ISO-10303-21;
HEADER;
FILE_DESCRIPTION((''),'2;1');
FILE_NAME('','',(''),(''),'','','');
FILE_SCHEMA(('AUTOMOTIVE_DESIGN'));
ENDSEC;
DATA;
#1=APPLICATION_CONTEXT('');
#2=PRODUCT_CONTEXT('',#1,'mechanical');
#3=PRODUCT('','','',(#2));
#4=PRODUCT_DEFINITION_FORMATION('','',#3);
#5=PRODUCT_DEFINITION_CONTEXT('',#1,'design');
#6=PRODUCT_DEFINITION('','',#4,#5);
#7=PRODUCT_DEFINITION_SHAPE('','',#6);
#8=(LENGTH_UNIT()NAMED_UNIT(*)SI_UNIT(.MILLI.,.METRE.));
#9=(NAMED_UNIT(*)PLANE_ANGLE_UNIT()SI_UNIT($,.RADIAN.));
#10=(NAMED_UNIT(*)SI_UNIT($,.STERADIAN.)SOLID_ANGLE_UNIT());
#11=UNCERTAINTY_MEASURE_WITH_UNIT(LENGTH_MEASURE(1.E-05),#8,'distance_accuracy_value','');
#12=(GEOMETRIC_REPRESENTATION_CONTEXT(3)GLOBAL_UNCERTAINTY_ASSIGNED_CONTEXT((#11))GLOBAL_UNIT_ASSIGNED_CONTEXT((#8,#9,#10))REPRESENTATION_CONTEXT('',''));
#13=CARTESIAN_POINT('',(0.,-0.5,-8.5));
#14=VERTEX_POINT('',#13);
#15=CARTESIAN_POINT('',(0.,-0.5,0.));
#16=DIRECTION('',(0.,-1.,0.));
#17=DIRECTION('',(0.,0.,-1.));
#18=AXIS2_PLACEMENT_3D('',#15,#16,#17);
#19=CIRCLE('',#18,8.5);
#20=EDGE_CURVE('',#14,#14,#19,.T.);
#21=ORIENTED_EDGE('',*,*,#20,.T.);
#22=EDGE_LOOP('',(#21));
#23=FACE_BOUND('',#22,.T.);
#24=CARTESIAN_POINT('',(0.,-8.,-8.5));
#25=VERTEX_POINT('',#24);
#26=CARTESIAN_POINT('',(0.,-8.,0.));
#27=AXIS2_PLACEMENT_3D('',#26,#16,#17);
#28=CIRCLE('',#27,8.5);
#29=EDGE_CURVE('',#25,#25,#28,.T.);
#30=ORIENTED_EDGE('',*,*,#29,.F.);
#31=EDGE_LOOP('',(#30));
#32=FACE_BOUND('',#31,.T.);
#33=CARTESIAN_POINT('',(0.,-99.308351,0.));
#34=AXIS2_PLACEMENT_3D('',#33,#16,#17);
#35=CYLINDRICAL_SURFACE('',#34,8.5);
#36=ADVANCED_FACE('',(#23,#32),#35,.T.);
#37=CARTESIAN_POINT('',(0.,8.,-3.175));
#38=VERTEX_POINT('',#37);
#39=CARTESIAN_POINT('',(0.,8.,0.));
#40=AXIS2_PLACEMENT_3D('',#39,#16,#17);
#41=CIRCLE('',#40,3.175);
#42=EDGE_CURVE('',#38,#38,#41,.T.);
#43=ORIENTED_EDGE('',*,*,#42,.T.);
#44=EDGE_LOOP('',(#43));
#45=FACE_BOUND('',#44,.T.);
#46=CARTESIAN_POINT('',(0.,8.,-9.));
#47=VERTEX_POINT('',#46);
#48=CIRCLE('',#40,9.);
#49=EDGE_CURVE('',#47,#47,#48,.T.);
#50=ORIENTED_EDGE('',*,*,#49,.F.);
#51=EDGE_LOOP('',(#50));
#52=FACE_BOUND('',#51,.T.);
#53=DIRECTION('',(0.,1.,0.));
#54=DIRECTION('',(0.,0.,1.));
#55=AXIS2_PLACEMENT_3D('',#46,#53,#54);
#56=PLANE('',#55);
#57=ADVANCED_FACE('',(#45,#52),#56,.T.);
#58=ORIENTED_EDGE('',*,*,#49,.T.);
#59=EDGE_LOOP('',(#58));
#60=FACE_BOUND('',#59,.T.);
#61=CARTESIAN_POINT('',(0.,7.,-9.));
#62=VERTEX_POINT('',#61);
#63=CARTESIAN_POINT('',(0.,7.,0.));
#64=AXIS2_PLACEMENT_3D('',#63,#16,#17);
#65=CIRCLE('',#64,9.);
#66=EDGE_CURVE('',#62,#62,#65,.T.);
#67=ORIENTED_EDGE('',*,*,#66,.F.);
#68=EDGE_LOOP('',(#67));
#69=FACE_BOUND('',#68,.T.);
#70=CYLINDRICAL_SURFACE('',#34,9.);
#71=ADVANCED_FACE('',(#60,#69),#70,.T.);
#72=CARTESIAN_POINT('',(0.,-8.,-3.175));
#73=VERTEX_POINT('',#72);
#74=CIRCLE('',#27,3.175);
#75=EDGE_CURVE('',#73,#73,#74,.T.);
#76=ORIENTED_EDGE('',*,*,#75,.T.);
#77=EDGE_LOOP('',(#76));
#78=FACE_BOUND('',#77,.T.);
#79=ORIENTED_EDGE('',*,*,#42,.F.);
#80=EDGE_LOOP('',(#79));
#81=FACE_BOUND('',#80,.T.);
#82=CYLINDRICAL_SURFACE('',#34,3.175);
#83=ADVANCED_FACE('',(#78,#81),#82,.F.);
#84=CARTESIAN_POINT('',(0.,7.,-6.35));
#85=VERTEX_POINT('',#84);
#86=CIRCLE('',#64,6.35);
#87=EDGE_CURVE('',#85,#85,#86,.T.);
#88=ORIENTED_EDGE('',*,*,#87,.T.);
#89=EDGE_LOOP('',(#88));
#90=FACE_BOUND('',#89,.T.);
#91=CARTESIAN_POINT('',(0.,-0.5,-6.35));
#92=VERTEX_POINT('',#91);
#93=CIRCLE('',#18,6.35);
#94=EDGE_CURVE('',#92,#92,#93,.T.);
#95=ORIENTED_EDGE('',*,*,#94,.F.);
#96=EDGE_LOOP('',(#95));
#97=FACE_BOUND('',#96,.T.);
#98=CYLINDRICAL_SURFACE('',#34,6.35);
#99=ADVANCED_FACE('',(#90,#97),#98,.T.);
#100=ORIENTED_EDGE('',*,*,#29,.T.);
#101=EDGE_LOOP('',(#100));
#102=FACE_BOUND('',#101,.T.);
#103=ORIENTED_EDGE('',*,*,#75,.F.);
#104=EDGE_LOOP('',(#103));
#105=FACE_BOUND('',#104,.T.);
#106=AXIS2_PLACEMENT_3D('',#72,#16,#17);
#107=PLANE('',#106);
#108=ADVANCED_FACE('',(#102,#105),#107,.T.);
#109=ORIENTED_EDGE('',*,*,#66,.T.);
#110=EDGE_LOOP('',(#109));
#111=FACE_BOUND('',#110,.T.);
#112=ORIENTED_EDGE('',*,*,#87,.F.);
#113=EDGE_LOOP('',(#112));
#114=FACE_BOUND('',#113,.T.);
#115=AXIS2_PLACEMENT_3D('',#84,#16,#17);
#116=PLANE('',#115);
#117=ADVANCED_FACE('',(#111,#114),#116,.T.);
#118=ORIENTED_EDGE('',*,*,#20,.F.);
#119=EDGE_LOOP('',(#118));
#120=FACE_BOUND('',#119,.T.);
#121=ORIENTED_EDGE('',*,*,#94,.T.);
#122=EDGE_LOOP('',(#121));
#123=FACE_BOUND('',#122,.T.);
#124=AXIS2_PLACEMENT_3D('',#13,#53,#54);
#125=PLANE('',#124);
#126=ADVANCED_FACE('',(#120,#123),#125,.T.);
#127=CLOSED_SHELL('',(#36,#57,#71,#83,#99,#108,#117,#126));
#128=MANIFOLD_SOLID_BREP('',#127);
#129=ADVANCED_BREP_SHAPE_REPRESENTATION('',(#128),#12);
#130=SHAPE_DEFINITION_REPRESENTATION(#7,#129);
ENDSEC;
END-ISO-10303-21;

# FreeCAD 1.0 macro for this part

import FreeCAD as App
import Part
import Sketcher
from FreeCAD import Vector


def add_polygon(sketch, points):
    """Adds a closed chain of lines whose ends are joined by coincident constraints."""
    first, n = sketch.GeometryCount, len(points)
    for a, b in zip(points, points[1:] + points[:1]):
        sketch.addGeometry(Part.LineSegment(App.Vector(*a, 0), App.Vector(*b, 0)), False)
    for i in range(n):
        sketch.addConstraint(Sketcher.Constraint("Coincident", first + i, 2, first + (i + 1) % n, 1))

doc = App.newDocument("Part")
body = doc.addObject("PartDesign::Body", "Body")

# Sketch on YZ plane
sketch1 = doc.addObject("Sketcher::SketchObject", "Sketch")
body.addObject(sketch1)
sketch1.AttachmentSupport = (doc.YZ_Plane, [""])
sketch1.MapMode = "FlatFace"
add_polygon(sketch1, [(8, -3.175), (-8, -3.175), (-8, -8.5), (-0.5, -8.5), (-0.5, -6.35), (7, -6.35), (7, -9), (8, -9)])  # lines 0-7
sketch1.addConstraint(Sketcher.Constraint("Horizontal", 0))
sketch1.addConstraint(Sketcher.Constraint("Vertical", 1))
sketch1.addConstraint(Sketcher.Constraint("Horizontal", 2))
sketch1.addConstraint(Sketcher.Constraint("Vertical", 3))
sketch1.addConstraint(Sketcher.Constraint("Horizontal", 4))
sketch1.addConstraint(Sketcher.Constraint("Vertical", 5))
sketch1.addConstraint(Sketcher.Constraint("Horizontal", 6))
sketch1.addConstraint(Sketcher.Constraint("Vertical", 7))
sketch1.addConstraint(Sketcher.Constraint("Equal", 2, 4))
sketch1.addConstraint(Sketcher.Constraint("DistanceX", 0, 2, 0, 1, 16.0))
sketch1.addConstraint(Sketcher.Constraint("DistanceX", 6, 1, 6, 2, 1.0))
sketch1.addConstraint(Sketcher.Constraint("DistanceX", 0, 2, -1, 1, 8.0))
sketch1.addConstraint(Sketcher.Constraint("DistanceY", 5, 2, -1, 1, 9.0))
sketch1.addConstraint(Sketcher.Constraint("DistanceY", 3, 1, 3, 2, 2.15))
sketch1.addConstraint(Sketcher.Constraint("DistanceY", 5, 2, 5, 1, 2.65))
sketch1.addConstraint(Sketcher.Constraint("DistanceY", 1, 2, 1, 1, 5.325))
revolution = doc.addObject("PartDesign::Revolution", "Revolution")
body.addObject(revolution)
revolution.Profile = sketch1
revolution.ReferenceAxis = (sketch1, ["H_Axis"])
revolution.Angle = 360

doc.recompute()
